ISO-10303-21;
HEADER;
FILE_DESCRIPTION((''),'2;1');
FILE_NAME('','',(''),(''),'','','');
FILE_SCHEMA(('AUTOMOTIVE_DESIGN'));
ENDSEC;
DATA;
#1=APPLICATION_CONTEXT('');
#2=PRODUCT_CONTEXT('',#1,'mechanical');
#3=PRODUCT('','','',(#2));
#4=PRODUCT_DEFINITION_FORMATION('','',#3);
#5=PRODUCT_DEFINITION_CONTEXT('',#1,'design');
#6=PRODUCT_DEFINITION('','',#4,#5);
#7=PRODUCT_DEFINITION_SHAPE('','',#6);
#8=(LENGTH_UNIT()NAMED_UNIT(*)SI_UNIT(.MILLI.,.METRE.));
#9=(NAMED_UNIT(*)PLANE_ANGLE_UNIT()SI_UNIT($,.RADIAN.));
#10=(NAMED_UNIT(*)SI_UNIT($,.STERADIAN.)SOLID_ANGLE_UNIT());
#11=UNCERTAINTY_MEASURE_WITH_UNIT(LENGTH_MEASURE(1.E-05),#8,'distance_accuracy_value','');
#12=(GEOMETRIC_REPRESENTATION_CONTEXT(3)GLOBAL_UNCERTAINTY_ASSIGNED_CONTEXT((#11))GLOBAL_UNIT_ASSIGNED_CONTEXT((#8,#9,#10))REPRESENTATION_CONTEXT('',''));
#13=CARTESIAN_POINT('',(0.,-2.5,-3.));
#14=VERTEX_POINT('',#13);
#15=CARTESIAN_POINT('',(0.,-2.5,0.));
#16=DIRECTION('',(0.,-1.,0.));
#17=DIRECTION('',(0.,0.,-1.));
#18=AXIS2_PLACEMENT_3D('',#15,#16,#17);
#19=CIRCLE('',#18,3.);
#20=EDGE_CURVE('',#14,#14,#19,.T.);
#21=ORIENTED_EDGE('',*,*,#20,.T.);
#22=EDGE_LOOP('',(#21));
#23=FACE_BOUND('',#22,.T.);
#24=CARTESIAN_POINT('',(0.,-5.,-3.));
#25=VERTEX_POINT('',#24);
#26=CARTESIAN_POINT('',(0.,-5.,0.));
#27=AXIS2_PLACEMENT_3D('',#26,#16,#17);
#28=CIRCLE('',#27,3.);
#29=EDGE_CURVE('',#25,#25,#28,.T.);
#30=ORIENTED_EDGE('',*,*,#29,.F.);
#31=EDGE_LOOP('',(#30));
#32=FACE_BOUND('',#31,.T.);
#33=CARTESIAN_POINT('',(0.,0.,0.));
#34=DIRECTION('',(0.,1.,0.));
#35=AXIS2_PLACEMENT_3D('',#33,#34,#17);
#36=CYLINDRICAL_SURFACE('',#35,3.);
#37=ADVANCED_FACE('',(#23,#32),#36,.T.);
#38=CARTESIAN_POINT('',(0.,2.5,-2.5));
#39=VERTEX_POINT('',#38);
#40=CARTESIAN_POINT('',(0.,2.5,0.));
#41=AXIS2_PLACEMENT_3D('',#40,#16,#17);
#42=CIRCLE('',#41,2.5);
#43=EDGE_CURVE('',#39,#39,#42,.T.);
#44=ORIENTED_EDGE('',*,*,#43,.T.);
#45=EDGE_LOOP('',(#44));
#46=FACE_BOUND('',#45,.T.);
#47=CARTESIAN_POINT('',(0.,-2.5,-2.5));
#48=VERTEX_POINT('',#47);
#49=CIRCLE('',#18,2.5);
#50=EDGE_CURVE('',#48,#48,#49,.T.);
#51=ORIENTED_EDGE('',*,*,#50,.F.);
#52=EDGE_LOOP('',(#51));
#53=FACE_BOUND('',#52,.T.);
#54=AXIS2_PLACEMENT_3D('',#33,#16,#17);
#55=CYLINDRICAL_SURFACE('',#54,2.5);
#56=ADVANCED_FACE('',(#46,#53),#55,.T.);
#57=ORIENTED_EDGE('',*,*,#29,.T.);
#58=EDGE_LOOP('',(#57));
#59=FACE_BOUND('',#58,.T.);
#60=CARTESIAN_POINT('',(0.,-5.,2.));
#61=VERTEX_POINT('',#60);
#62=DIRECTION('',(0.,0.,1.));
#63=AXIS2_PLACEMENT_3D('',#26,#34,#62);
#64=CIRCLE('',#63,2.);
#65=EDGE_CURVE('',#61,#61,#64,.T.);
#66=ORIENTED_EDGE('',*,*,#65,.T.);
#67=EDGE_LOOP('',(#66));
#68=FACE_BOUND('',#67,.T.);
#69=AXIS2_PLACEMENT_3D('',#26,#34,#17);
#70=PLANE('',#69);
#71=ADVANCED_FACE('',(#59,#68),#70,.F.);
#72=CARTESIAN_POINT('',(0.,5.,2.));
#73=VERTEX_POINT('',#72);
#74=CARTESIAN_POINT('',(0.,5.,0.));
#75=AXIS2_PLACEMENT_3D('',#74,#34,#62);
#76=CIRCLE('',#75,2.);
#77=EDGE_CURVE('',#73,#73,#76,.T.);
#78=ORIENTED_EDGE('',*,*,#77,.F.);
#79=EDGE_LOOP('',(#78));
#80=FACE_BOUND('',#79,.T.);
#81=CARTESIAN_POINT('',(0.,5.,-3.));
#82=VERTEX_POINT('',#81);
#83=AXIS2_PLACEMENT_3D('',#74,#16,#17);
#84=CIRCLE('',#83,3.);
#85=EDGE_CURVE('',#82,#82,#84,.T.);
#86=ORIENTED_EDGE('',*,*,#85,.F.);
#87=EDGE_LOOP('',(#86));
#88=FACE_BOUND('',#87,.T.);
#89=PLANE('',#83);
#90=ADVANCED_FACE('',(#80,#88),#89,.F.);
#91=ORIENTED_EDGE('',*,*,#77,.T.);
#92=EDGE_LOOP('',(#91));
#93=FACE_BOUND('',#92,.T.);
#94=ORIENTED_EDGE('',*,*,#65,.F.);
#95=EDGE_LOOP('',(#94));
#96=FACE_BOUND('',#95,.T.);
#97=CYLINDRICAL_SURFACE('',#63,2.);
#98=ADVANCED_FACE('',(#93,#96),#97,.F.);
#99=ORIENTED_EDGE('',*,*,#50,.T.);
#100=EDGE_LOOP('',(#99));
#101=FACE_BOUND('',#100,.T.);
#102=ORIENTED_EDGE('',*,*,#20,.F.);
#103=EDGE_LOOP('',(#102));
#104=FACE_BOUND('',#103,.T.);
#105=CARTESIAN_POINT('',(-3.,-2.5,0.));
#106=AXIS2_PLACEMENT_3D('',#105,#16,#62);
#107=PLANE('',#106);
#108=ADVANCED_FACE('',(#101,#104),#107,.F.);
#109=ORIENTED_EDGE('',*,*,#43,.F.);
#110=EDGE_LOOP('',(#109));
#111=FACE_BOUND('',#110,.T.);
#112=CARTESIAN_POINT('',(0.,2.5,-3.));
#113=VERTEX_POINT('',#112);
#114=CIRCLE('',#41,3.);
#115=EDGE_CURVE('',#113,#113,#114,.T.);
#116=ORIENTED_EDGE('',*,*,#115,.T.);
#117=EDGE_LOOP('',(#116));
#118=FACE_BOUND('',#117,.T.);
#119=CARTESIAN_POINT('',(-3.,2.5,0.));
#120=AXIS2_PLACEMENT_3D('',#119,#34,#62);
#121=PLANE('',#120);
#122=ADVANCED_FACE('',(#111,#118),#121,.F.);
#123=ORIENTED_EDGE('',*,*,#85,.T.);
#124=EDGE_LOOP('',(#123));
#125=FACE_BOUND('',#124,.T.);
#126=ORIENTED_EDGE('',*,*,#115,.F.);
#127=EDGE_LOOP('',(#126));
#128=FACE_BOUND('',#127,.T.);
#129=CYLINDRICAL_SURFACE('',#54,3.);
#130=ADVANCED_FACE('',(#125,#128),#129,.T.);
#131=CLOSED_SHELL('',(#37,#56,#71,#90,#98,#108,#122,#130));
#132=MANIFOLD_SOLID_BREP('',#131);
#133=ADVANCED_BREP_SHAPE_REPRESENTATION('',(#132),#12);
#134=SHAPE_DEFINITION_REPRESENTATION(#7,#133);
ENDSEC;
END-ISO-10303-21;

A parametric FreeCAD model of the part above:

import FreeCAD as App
import Part
import Sketcher

V = App.Vector

doc = App.newDocument("Part")
body = doc.addObject("PartDesign::Body", "Body")

# Sketch on XY plane
sketch1 = body.newObject("Sketcher::SketchObject", "Sketch")
sketch1.AttachmentSupport = (doc.getObject("XY_Plane"), [""])
sketch1.MapMode = "FlatFace"
sketch1.addGeometry([
    Part.LineSegment(V(0, 0, 0), V(0, 5, 0)),  # 0
    Part.LineSegment(V(0, 5, 0), V(-3, 5, 0)),  # 1
    Part.LineSegment(V(-3, 5, 0), V(-3, 2.5, 0)),  # 2
    Part.LineSegment(V(-3, 2.5, 0), V(-2.5, 2.5, 0)),  # 3
    Part.LineSegment(V(-2.5, 2.5, 0), V(-2.5, 0, 0)),  # 4
    Part.LineSegment(V(-2.5, 0, 0), V(0, 0, 0)),  # 5
], False)
sketch1.addConstraint([
    Sketcher.Constraint("Coincident", 0, 2, 1, 1),
    Sketcher.Constraint("Coincident", 1, 2, 2, 1),
    Sketcher.Constraint("Coincident", 2, 2, 3, 1),
    Sketcher.Constraint("Coincident", 3, 2, 4, 1),
    Sketcher.Constraint("Coincident", 4, 2, 5, 1),
    Sketcher.Constraint("Coincident", 5, 2, 0, 1),
    Sketcher.Constraint("Vertical", 0),
    Sketcher.Constraint("Horizontal", 1),
    Sketcher.Constraint("Vertical", 2),
    Sketcher.Constraint("Horizontal", 3),
    Sketcher.Constraint("Vertical", 4),
    Sketcher.Constraint("Horizontal", 5),
    Sketcher.Constraint("Coincident", 5, 2, -1, 1),
    Sketcher.Constraint("Equal", 5, 2),
    Sketcher.Constraint("Equal", 2, 4),
    Sketcher.Constraint("DistanceX", 1, 2, 1, 1, 3.0),
    Sketcher.Constraint("DistanceY", 0, 1, 0, 2, 5.0),
])
revolution = body.newObject("PartDesign::Revolution", "Revolution")
revolution.Profile = sketch1
revolution.ReferenceAxis = (sketch1, ["V_Axis"])
revolution.Angle = 360
doc.recompute()

mirrored = body.newObject("PartDesign::Mirrored", "Mirrored")
mirrored.Originals = [revolution]
mirrored.MirrorPlane = (doc.getObject("XZ_Plane"), [""])
body.Tip = mirrored

# Sketch on XZ plane
sketch2 = body.newObject("Sketcher::SketchObject", "Sketch001")
sketch2.AttachmentSupport = (doc.getObject("XZ_Plane"), [""])
sketch2.MapMode = "FlatFace"
sketch2.AttachmentOffset = App.Placement(V(0, 0, -5), App.Rotation())
sketch2.addGeometry(Part.Circle(V(0, 0, 0), V(0, 0, 1), 2), False)
sketch2.addConstraint([
    Sketcher.Constraint("Coincident", 0, 3, -1, 1),
    Sketcher.Constraint("Diameter", 0, 4.0),
])
pocket1 = body.newObject("PartDesign::Pocket", "Pocket")
pocket1.Profile = sketch2
pocket1.Type = "ThroughAll"
pocket1.Reversed = True

doc.recompute()
